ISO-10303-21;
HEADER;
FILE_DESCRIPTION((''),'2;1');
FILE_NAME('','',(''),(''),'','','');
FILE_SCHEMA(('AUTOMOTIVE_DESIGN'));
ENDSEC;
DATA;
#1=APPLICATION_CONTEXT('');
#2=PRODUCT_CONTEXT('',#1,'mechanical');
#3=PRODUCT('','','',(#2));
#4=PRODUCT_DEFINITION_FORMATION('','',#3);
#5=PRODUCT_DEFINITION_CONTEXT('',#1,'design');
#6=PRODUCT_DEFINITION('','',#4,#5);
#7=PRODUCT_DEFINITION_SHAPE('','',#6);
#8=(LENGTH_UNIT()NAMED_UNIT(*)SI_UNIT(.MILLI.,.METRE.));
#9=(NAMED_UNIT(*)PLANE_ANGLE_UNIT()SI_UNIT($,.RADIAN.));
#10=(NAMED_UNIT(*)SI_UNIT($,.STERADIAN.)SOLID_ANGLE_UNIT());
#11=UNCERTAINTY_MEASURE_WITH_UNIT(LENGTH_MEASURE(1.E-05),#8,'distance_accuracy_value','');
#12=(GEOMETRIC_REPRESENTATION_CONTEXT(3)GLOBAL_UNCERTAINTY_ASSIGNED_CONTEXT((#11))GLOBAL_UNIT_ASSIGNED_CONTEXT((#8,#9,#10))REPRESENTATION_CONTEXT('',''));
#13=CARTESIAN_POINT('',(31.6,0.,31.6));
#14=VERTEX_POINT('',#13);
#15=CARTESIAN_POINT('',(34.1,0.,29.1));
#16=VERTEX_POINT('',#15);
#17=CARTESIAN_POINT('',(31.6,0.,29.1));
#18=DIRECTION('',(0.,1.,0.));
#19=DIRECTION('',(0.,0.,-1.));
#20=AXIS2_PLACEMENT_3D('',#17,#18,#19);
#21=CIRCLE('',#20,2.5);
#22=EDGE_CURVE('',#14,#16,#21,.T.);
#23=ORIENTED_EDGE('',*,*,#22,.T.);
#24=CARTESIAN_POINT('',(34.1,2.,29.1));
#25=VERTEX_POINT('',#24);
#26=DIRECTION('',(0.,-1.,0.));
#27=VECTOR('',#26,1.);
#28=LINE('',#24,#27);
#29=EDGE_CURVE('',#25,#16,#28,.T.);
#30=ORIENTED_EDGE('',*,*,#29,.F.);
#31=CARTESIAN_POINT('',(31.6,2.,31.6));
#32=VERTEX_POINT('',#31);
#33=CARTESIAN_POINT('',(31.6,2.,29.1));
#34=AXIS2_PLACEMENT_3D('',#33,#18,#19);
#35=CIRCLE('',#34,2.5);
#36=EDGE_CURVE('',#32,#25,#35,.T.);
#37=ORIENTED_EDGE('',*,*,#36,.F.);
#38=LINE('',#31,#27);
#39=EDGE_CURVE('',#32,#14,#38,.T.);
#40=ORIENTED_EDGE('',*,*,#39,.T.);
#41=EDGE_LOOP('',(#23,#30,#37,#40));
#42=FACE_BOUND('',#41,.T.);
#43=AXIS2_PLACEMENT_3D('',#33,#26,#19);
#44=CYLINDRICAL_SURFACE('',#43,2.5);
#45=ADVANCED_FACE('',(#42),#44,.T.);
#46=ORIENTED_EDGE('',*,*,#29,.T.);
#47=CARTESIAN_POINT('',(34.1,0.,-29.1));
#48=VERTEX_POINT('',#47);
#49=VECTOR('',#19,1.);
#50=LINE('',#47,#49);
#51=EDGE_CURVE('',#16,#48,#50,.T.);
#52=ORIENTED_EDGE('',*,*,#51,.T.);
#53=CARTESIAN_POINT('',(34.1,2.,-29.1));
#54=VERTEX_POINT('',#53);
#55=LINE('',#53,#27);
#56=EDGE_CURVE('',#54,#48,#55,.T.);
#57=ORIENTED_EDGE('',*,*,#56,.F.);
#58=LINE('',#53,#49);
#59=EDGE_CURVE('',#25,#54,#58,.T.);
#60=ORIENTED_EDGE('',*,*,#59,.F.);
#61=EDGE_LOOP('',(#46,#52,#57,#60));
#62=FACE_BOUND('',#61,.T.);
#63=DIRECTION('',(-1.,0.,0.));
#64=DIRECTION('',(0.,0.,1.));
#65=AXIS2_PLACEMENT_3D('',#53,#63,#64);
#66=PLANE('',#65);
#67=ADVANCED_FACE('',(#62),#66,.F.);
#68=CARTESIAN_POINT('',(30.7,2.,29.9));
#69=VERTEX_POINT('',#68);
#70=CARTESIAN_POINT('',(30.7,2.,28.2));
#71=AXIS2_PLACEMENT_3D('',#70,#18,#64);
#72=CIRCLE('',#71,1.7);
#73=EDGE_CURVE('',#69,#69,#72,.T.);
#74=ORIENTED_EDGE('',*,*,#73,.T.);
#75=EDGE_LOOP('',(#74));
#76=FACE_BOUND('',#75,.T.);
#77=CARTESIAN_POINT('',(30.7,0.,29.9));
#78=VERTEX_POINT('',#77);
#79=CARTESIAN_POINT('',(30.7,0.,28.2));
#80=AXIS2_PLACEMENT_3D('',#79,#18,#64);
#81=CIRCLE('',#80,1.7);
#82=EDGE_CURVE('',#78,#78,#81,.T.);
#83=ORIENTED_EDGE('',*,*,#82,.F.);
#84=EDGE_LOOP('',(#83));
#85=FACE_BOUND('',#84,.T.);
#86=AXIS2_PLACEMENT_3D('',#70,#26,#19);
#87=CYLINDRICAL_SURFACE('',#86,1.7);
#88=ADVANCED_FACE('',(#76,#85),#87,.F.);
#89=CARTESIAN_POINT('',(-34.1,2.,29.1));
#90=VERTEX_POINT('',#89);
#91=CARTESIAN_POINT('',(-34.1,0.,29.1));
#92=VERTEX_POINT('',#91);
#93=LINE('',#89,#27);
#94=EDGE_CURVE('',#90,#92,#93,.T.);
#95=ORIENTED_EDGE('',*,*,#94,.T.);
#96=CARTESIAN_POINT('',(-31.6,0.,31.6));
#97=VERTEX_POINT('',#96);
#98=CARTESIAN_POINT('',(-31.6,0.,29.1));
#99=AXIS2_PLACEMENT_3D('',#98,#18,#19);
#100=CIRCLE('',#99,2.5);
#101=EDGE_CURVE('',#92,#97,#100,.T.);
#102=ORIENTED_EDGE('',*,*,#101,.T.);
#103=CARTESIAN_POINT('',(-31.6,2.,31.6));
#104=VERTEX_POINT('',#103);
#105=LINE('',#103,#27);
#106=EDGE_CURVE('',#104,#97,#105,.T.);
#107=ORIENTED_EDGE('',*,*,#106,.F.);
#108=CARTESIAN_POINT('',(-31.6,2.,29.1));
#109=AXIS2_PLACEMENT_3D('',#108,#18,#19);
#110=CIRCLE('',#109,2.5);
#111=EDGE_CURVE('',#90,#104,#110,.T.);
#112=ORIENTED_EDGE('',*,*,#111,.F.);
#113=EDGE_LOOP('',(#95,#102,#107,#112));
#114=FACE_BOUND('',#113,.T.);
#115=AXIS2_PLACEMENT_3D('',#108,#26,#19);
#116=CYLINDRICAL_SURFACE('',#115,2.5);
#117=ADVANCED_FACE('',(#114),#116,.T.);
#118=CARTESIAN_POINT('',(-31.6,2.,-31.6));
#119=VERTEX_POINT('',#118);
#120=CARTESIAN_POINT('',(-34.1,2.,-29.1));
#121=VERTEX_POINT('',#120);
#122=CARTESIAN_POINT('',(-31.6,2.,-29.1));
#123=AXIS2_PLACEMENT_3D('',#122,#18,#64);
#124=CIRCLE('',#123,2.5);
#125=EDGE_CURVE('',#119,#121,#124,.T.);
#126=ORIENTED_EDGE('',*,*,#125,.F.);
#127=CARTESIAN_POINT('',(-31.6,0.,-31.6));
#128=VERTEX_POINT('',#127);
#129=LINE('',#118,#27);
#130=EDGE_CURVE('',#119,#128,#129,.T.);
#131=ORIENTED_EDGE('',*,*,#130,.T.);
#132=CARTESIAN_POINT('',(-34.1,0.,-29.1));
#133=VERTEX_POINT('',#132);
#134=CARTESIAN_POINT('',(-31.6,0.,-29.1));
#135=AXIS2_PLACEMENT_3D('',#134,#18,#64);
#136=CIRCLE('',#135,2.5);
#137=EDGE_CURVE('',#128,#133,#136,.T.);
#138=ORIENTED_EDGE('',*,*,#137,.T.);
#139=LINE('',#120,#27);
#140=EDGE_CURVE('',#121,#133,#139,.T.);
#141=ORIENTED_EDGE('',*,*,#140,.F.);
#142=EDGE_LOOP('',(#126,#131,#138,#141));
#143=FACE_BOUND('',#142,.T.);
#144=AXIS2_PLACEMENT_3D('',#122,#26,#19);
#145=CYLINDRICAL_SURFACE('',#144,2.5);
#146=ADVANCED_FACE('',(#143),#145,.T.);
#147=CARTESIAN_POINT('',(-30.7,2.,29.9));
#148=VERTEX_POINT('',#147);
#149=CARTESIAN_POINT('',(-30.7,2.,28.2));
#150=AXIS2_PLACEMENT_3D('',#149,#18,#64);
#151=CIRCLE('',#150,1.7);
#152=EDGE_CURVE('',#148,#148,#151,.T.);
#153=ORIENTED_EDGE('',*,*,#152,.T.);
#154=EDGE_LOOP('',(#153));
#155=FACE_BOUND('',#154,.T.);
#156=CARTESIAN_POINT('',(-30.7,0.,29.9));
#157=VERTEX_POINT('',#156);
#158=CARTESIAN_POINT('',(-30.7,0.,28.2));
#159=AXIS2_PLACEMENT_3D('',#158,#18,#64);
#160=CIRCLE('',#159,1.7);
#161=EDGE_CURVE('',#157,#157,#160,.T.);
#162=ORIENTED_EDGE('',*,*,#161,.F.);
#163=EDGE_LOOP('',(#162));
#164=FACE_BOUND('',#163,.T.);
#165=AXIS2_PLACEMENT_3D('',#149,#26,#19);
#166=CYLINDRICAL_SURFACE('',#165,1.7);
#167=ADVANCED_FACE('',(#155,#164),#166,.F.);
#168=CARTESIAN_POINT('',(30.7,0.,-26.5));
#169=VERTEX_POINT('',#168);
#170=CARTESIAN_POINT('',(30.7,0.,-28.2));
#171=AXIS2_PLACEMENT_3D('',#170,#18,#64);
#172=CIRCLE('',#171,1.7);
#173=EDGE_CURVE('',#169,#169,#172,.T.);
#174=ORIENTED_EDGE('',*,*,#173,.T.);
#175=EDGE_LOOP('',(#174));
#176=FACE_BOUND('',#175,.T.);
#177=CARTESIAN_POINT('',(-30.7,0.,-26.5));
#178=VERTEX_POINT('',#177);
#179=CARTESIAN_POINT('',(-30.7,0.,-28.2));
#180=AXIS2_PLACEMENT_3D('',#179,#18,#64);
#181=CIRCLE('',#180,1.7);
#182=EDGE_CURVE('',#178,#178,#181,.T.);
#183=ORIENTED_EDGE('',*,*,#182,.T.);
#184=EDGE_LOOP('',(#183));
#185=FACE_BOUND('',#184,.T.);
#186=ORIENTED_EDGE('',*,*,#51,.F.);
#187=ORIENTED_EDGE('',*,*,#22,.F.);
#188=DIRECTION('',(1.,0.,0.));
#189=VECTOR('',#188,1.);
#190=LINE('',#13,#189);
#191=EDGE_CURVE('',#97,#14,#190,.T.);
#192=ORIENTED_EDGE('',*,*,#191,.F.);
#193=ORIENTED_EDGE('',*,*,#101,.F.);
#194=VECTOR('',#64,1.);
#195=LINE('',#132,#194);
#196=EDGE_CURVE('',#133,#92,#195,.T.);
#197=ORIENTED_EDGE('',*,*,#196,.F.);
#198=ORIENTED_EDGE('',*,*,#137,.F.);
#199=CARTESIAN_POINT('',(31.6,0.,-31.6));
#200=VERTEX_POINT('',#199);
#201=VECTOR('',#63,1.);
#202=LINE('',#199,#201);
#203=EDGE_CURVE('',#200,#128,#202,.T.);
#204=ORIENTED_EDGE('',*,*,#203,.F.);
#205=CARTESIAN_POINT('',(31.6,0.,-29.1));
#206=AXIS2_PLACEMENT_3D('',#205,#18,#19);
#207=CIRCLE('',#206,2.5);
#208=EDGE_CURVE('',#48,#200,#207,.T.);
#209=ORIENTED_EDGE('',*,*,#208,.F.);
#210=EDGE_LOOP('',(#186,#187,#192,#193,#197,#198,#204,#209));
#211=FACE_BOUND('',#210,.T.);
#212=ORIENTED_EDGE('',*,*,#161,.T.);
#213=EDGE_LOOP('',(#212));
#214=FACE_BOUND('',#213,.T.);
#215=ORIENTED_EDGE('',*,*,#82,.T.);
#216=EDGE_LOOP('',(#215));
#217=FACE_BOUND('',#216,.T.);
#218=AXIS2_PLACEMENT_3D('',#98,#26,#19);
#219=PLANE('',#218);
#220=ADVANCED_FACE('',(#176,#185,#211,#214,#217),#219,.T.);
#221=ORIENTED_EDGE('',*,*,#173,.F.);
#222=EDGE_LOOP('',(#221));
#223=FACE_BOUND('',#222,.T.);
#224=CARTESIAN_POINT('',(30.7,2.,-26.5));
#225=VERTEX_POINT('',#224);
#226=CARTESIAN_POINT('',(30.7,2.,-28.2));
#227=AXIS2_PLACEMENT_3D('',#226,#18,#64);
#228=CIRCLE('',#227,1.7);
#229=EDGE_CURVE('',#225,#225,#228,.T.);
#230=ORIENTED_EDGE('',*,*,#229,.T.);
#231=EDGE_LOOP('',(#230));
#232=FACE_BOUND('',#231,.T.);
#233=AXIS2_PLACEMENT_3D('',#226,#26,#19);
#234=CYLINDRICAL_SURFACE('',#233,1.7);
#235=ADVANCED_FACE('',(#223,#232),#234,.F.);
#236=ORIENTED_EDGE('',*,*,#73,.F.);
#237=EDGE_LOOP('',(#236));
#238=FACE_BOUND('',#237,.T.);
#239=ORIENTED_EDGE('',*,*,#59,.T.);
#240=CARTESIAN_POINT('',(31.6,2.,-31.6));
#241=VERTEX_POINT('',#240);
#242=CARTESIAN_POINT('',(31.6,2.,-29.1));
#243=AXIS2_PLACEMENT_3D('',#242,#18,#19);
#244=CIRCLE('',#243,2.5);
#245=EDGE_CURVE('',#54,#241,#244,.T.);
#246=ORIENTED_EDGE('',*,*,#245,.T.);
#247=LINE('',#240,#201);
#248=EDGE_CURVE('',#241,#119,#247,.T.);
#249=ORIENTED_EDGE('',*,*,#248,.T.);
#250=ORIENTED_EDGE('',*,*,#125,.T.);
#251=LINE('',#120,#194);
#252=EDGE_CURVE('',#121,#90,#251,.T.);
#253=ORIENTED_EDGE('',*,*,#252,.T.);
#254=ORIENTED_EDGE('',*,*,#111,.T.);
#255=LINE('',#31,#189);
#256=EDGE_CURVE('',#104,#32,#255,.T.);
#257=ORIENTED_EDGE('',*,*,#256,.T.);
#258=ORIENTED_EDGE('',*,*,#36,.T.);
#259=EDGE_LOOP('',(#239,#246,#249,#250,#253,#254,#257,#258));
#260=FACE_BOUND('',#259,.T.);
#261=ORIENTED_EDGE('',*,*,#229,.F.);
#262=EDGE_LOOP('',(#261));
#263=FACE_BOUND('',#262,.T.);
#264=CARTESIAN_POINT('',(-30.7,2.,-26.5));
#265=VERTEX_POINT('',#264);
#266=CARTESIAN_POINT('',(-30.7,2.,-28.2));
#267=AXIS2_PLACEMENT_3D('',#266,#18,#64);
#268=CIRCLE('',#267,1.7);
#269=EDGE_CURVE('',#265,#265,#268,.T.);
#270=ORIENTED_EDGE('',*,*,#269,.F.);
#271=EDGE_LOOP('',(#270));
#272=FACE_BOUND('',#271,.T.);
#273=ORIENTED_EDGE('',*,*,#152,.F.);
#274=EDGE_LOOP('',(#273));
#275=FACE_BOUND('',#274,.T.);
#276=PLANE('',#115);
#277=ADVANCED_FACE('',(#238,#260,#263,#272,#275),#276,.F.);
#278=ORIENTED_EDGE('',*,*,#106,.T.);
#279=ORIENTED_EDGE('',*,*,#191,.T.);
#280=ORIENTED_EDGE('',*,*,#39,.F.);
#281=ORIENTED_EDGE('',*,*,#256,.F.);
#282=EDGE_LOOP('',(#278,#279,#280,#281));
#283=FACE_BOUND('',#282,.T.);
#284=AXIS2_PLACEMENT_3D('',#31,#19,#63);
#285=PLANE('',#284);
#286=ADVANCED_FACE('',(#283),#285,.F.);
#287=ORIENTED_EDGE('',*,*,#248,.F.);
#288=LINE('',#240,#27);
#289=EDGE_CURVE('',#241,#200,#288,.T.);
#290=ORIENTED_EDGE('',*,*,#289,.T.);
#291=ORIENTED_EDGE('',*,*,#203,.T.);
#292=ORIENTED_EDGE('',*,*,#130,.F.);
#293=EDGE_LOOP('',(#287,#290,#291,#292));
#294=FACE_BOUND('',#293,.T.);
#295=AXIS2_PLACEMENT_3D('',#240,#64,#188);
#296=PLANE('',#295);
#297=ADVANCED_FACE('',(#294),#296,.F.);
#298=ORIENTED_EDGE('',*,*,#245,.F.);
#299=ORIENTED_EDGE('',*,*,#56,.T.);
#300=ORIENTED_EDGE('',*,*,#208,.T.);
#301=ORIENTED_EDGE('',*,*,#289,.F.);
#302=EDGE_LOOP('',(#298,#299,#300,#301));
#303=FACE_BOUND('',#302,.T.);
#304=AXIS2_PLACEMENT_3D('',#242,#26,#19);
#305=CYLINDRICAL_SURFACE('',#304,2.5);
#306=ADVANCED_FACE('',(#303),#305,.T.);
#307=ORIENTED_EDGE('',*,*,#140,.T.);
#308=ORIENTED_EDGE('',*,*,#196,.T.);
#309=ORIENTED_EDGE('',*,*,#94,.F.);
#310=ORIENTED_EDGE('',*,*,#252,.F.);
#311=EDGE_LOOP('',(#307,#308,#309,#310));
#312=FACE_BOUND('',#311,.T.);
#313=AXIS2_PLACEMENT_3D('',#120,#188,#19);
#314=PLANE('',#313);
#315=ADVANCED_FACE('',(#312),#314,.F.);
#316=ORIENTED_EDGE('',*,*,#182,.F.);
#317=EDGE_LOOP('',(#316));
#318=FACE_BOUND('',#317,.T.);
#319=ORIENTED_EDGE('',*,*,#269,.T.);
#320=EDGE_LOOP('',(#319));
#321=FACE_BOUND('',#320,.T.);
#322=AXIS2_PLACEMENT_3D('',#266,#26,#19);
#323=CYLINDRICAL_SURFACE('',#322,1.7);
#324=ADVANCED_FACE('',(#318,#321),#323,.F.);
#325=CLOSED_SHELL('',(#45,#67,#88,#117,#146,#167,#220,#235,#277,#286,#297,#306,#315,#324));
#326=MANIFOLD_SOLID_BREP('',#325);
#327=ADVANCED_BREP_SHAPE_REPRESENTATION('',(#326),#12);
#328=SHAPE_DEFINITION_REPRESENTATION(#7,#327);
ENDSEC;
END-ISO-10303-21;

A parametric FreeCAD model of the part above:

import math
import FreeCAD as App
import Part
import Sketcher
from FreeCAD import Vector
Q = App.Units.Quantity

doc = App.newDocument("Part")
body = doc.addObject("PartDesign::Body", "Body")

# Sketch on XZ plane
sketch1 = doc.addObject("Sketcher::SketchObject", "Sketch")
body.addObject(sketch1)
sketch1.AttachmentSupport = (doc.XZ_Plane, [""])
sketch1.MapMode = "FlatFace"
sketch1.addGeometry([
    Part.LineSegment(Vector(31.6, -31.6, 0), Vector(-31.6, -31.6, 0)),  # 0
    Part.ArcOfCircle(Part.Circle(Vector(-31.6, -29.1, 0), Vector(0, 0, 1), 2.5), math.radians(180), math.radians(270)),  # 1
    Part.LineSegment(Vector(-34.1, -29.1, 0), Vector(-34.1, 29.1, 0)),  # 2
    Part.ArcOfCircle(Part.Circle(Vector(-31.6, 29.1, 0), Vector(0, 0, 1), 2.5), math.radians(90), math.radians(180)),  # 3
    Part.LineSegment(Vector(-31.6, 31.6, 0), Vector(31.6, 31.6, 0)),  # 4
    Part.ArcOfCircle(Part.Circle(Vector(31.6, 29.1, 0), Vector(0, 0, 1), 2.5), math.radians(0), math.radians(90)),  # 5
    Part.LineSegment(Vector(34.1, 29.1, 0), Vector(34.1, -29.1, 0)),  # 6
    Part.ArcOfCircle(Part.Circle(Vector(31.6, -29.1, 0), Vector(0, 0, 1), 2.5), math.radians(-90), math.radians(0)),  # 7
    Part.Circle(Vector(-30.7, 28.2, 0), Vector(0, 0, 1), 1.7),  # 8
    Part.Circle(Vector(30.7, 28.2, 0), Vector(0, 0, 1), 1.7),  # 9
    Part.Circle(Vector(-30.7, -28.2, 0), Vector(0, 0, 1), 1.7),  # 10
    Part.Circle(Vector(30.7, -28.2, 0), Vector(0, 0, 1), 1.7),  # 11
], False)
sketch1.addConstraint([
    Sketcher.Constraint("Tangent", 0, 2, 1, 2),
    Sketcher.Constraint("Tangent", 1, 1, 2, 1),
    Sketcher.Constraint("Tangent", 2, 2, 3, 2),
    Sketcher.Constraint("Tangent", 3, 1, 4, 1),
    Sketcher.Constraint("Tangent", 4, 2, 5, 2),
    Sketcher.Constraint("Tangent", 5, 1, 6, 1),
    Sketcher.Constraint("Tangent", 6, 2, 7, 2),
    Sketcher.Constraint("Tangent", 7, 1, 0, 1),
    Sketcher.Constraint("Horizontal", 0),
    Sketcher.Constraint("Vertical", 2),
    Sketcher.Constraint("Horizontal", 4),
    Sketcher.Constraint("Vertical", 6),
    Sketcher.Constraint("Equal", 1, 3),
    Sketcher.Constraint("Equal", 3, 5),
    Sketcher.Constraint("Equal", 5, 7),
    Sketcher.Constraint("Equal", 8, 9),
    Sketcher.Constraint("Equal", 9, 10),
    Sketcher.Constraint("Equal", 10, 11),
    Sketcher.Constraint("Symmetric", 1, 3, 5, 3, -1, 1),
    Sketcher.Constraint("Symmetric", 9, 3, 10, 3, -1, 1),
    Sketcher.Constraint("Symmetric", 8, 3, 11, 3, -1, 1),
    Sketcher.Constraint("Symmetric", 8, 3, 9, 3, -2),
    Sketcher.Constraint("Diameter", 8, Q("3.4 mm")),
    Sketcher.Constraint("Radius", 1, Q("2.5 mm")),
    Sketcher.Constraint("DistanceX", 0, 2, 0, 1, Q("63.2 mm")),
    Sketcher.Constraint("DistanceY", 2, 1, 2, 2, Q("58.2 mm")),
    Sketcher.Constraint("DistanceX", 8, 3, -1, 1, Q("30.7 mm")),
    Sketcher.Constraint("DistanceY", -1, 1, 8, 3, Q("28.2 mm")),
])
pad1 = doc.addObject("PartDesign::Pad", "Pad")
body.addObject(pad1)
pad1.Profile = sketch1
pad1.Length = 2
pad1.Reversed = True

doc.recompute()
